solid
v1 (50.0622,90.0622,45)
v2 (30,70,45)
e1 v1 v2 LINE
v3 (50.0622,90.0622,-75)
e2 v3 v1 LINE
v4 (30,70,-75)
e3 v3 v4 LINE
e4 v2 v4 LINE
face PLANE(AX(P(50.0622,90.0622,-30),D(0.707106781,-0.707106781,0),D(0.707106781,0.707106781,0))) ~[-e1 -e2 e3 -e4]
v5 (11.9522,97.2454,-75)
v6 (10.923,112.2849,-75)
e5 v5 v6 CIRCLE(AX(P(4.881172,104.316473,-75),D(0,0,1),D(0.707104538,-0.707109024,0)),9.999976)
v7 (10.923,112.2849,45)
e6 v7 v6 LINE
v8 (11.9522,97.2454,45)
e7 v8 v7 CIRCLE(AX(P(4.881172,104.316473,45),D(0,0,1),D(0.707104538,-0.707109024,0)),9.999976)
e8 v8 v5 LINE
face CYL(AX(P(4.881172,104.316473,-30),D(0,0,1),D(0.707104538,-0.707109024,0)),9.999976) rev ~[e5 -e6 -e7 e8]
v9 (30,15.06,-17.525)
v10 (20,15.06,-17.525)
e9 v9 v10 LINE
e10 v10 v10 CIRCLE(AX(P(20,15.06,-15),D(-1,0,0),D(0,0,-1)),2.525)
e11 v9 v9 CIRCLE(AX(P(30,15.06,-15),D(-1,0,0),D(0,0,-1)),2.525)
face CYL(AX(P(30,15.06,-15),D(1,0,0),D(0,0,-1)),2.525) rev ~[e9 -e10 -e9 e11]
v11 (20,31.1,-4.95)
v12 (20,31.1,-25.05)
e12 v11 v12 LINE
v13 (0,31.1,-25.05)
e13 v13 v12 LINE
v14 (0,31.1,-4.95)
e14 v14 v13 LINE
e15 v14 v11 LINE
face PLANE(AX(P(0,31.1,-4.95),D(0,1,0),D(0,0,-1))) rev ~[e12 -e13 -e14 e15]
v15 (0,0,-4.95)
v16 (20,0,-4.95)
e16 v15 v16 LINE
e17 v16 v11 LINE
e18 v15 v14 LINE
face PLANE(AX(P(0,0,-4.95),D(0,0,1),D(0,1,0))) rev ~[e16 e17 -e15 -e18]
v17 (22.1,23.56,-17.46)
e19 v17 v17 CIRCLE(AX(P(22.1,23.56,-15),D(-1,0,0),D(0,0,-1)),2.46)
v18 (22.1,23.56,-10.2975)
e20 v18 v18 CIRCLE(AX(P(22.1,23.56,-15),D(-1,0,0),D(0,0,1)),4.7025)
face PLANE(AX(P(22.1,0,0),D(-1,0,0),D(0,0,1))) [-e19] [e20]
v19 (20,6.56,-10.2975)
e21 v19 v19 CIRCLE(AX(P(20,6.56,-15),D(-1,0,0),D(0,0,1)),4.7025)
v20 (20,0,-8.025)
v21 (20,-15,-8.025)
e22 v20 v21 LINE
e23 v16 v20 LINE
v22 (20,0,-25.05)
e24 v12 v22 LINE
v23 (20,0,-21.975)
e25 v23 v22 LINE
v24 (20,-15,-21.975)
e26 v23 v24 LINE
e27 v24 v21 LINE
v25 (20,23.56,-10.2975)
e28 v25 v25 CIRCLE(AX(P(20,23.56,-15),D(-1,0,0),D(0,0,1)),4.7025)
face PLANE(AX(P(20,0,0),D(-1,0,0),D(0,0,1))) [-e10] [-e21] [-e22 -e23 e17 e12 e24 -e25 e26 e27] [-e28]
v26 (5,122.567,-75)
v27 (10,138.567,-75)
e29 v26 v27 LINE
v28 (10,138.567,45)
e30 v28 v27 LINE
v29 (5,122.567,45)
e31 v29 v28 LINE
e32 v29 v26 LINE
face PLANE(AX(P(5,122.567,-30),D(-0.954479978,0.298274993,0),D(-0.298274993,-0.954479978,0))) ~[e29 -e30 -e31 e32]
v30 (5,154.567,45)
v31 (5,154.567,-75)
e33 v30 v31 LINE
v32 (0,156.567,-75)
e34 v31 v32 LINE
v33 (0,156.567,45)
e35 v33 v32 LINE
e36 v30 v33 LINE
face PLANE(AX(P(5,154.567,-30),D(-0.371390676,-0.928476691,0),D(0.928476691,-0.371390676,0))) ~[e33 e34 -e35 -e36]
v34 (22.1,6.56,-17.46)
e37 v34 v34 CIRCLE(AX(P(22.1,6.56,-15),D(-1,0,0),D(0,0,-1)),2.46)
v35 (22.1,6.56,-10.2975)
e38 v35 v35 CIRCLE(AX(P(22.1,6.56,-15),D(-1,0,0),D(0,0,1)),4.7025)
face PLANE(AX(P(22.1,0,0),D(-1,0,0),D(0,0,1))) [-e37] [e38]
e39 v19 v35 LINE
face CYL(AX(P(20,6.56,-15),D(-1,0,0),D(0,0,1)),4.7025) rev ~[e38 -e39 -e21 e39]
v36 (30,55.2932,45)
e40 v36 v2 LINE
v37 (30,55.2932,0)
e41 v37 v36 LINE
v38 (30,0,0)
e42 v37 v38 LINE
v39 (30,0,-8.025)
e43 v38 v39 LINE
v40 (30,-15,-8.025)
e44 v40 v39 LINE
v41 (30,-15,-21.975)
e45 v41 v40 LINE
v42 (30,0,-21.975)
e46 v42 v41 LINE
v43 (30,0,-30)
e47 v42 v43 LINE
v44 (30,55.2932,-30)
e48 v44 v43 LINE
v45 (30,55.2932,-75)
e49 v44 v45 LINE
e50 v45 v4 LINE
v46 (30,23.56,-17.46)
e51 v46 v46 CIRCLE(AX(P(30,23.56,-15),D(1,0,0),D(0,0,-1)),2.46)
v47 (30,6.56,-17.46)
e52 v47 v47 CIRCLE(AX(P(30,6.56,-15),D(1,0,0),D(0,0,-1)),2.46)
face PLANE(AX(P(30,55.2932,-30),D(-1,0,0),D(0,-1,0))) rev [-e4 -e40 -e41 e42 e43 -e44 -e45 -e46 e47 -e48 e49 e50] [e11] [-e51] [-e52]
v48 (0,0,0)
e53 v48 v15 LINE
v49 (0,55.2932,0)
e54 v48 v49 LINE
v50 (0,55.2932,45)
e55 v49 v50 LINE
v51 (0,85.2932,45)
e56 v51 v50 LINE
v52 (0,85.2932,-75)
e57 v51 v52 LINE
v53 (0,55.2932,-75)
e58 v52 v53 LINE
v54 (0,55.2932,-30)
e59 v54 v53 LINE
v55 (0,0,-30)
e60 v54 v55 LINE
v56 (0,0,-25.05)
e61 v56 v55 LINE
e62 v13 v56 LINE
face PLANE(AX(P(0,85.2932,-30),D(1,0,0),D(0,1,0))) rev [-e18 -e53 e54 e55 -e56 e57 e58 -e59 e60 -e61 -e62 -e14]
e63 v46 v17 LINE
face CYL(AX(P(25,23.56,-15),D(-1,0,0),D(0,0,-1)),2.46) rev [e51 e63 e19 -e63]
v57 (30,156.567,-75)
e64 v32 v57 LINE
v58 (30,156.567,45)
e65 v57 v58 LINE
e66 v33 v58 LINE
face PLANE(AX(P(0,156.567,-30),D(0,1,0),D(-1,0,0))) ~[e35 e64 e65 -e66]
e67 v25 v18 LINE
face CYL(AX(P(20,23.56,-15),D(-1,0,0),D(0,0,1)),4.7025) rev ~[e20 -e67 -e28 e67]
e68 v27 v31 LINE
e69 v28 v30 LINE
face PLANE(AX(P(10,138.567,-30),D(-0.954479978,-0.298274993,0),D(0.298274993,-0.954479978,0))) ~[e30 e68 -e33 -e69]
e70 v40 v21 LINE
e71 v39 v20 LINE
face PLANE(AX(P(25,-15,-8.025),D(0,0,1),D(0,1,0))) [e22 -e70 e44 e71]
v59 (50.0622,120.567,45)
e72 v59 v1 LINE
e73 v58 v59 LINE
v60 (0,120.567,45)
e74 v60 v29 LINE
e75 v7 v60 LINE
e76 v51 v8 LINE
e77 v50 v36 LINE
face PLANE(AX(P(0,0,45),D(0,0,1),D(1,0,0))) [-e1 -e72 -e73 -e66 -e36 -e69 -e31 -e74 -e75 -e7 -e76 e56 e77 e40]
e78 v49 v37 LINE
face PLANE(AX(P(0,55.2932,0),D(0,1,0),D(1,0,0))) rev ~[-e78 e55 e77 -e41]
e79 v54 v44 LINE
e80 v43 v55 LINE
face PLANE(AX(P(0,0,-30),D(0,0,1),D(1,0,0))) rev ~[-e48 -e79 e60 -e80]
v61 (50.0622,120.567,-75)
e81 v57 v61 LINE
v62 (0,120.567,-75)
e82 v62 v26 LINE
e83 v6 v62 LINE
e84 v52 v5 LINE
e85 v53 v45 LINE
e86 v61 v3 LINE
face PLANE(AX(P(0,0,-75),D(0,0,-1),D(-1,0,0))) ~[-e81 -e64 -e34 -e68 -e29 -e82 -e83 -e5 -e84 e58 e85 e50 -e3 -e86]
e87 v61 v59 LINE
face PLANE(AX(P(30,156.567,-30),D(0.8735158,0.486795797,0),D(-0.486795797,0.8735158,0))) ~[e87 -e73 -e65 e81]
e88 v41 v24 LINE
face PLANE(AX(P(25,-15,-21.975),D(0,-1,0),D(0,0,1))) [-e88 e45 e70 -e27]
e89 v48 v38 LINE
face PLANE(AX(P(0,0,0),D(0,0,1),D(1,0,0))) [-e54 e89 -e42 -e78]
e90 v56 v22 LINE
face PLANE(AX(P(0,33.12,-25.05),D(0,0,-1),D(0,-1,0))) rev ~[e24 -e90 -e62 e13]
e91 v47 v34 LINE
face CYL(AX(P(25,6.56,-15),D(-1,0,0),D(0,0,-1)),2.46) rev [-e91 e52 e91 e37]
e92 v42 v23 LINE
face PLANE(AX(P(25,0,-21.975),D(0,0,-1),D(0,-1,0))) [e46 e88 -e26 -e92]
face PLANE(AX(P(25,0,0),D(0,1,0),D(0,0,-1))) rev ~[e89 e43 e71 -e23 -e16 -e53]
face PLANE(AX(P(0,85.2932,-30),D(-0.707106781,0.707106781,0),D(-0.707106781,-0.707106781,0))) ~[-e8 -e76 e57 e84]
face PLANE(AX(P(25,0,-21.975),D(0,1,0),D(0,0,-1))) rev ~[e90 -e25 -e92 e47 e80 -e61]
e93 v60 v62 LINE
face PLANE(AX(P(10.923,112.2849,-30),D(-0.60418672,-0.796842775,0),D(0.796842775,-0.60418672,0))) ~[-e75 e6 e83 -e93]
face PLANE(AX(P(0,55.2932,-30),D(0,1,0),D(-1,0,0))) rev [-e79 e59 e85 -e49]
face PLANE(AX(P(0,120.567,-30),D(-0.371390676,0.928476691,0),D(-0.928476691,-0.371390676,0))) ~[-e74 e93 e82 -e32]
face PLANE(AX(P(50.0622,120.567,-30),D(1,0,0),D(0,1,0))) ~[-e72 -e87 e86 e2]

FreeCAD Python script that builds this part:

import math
import FreeCAD as App
import Part
import Sketcher

V = App.Vector
Q = App.Units.Quantity

doc = App.newDocument("Part")
body = doc.addObject("PartDesign::Body", "Body")

# Sketch on XY plane
sketch1 = doc.addObject("Sketcher::SketchObject", "Sketch")
body.addObject(sketch1)
sketch1.AttachmentSupport = (doc.XY_Plane, [""])
sketch1.MapMode = "FlatFace"
sketch1.addGeometry(Part.LineSegment(V(0, 40, 0), V(0, 0, 0)), False)
sketch1.addGeometry(Part.LineSegment(V(0, 0, 0), V(25, 0, 0)), False)
sketch1.addGeometry(Part.LineSegment(V(25, 0, 0), V(25, 40, 0)), False)
sketch1.addGeometry(Part.LineSegment(V(25, 40, 0), V(0, 40, 0)), False)
sketch1.addConstraint(Sketcher.Constraint("Coincident", 0, 2, 1, 1))
sketch1.addConstraint(Sketcher.Constraint("Coincident", 1, 2, 2, 1))
sketch1.addConstraint(Sketcher.Constraint("Coincident", 2, 2, 3, 1))
sketch1.addConstraint(Sketcher.Constraint("Coincident", 3, 2, 0, 1))
sketch1.addConstraint(Sketcher.Constraint("Vertical", 0))
sketch1.addConstraint(Sketcher.Constraint("Horizontal", 1))
sketch1.addConstraint(Sketcher.Constraint("Vertical", 2))
sketch1.addConstraint(Sketcher.Constraint("Horizontal", 3))
sketch1.addConstraint(Sketcher.Constraint("Coincident", 0, 2, -1, 1))
sketch1.addConstraint(Sketcher.Constraint("DistanceX", 1, 1, 1, 2, Q("25 mm")))
sketch1.addConstraint(Sketcher.Constraint("DistanceY", 0, 2, 0, 1, Q("40 mm")))
pad1 = doc.addObject("PartDesign::Pad", "Pad")
body.addObject(pad1)
pad1.Profile = sketch1
pad1.Length = 30
pad1.Reversed = True

# Sketch on YZ plane
sketch2 = doc.addObject("Sketcher::SketchObject", "Sketch001")
body.addObject(sketch2)
sketch2.AttachmentSupport = (doc.YZ_Plane, [""])
sketch2.MapMode = "FlatFace"
sketch2.AttachmentOffset = App.Placement(V(0, 0, 25), App.Rotation())
sketch2.addGeometry(Part.Circle(V(6.6, -15, 0), V(0, 0, 1), 2.5), False)
sketch2.addConstraint(Sketcher.Constraint("Diameter", 0, Q("4.92 mm")))
sketch2.addConstraint(Sketcher.Constraint("DistanceY", 0, 3, -1, 1, Q("15 mm")))
sketch2.addConstraint(Sketcher.Constraint("DistanceX", -1, 1, 0, 3, Q("6.56 mm")))
pocket1 = doc.addObject("PartDesign::Pocket", "Pocket")
body.addObject(pocket1)
pocket1.Profile = sketch2
pocket1.Length = 30

# Sketch on YZ plane
sketch3 = doc.addObject("Sketcher::SketchObject", "Sketch002")
body.addObject(sketch3)
sketch3.AttachmentSupport = (doc.YZ_Plane, [""])
sketch3.MapMode = "FlatFace"
sketch3.addGeometry(Part.LineSegment(V(0, -25, 0), V(0, -5, 0)), False)
sketch3.addGeometry(Part.LineSegment(V(0, -5, 0), V(33, -5, 0)), False)
sketch3.addGeometry(Part.LineSegment(V(33, -5, 0), V(33, -25, 0)), False)
sketch3.addGeometry(Part.LineSegment(V(33, -25, 0), V(0, -25, 0)), False)
sketch3.addConstraint(Sketcher.Constraint("Coincident", 0, 2, 1, 1))
sketch3.addConstraint(Sketcher.Constraint("Coincident", 1, 2, 2, 1))
sketch3.addConstraint(Sketcher.Constraint("Coincident", 2, 2, 3, 1))
sketch3.addConstraint(Sketcher.Constraint("Coincident", 3, 2, 0, 1))
sketch3.addConstraint(Sketcher.Constraint("Vertical", 0))
sketch3.addConstraint(Sketcher.Constraint("Horizontal", 1))
sketch3.addConstraint(Sketcher.Constraint("Vertical", 2))
sketch3.addConstraint(Sketcher.Constraint("Horizontal", 3))
sketch3.addConstraint(Sketcher.Constraint("PointOnObject", 0, 2, -2))
sketch3.addConstraint(Sketcher.Constraint("DistanceY", 0, 1, 0, 2, Q("20.1 mm")))
sketch3.addConstraint(Sketcher.Constraint("DistanceX", 1, 1, 1, 2, Q("33.12 mm")))
sketch3.addConstraint(Sketcher.Constraint("DistanceY", 0, 2, -1, 1, Q("4.95 mm")))
pocket2 = doc.addObject("PartDesign::Pocket", "Pocket001")
body.addObject(pocket2)
pocket2.Profile = sketch3
pocket2.Length = 20
pocket2.Reversed = True

# Sketch on XZ plane
sketch4 = doc.addObject("Sketcher::SketchObject", "Sketch003")
body.addObject(sketch4)
sketch4.AttachmentSupport = (doc.XZ_Plane, [""])
sketch4.MapMode = "FlatFace"
sketch4.addGeometry(Part.LineSegment(V(25, -8, 0), V(20, -8, 0)), False)
sketch4.addGeometry(Part.LineSegment(V(20, -8, 0), V(20, -22, 0)), False)
sketch4.addGeometry(Part.LineSegment(V(20, -22, 0), V(25, -22, 0)), False)
sketch4.addGeometry(Part.LineSegment(V(25, -22, 0), V(25, -8, 0)), False)
sketch4.addConstraint(Sketcher.Constraint("Coincident", 0, 2, 1, 1))
sketch4.addConstraint(Sketcher.Constraint("Coincident", 1, 2, 2, 1))
sketch4.addConstraint(Sketcher.Constraint("Coincident", 2, 2, 3, 1))
sketch4.addConstraint(Sketcher.Constraint("Coincident", 3, 2, 0, 1))
sketch4.addConstraint(Sketcher.Constraint("Horizontal", 0))
sketch4.addConstraint(Sketcher.Constraint("Vertical", 1))
sketch4.addConstraint(Sketcher.Constraint("Horizontal", 2))
sketch4.addConstraint(Sketcher.Constraint("Vertical", 3))
sketch4.addConstraint(Sketcher.Constraint("DistanceY", 1, 2, 1, 1, Q("13.95 mm")))
sketch4.addConstraint(Sketcher.Constraint("DistanceX", 0, 2, 0, 1, Q("5 mm")))
sketch4.addConstraint(Sketcher.Constraint("DistanceX", -1, 1, 0, 2, Q("20 mm")))
sketch4.addConstraint(Sketcher.Constraint("DistanceY", 0, 2, -1, 1, Q("8.025 mm")))
pad2 = doc.addObject("PartDesign::Pad", "Pad001")
body.addObject(pad2)
pad2.Profile = sketch4
pad2.Length = 15

# Sketch on YZ plane
sketch5 = doc.addObject("Sketcher::SketchObject", "Sketch004")
body.addObject(sketch5)
sketch5.AttachmentSupport = (doc.YZ_Plane, [""])
sketch5.MapMode = "FlatFace"
sketch5.AttachmentOffset = App.Placement(V(0, 0, 20), App.Rotation())
sketch5.addGeometry(Part.Circle(V(6.6, -15, 0), V(0, 0, 1), 4.7), False)
sketch5.addGeometry(Part.Circle(V(6.6, -15, 0), V(0, 0, 1), 2.5), False)
sketch5.addConstraint(Sketcher.Constraint("Coincident", 1, 3, 0, 3))
sketch5.addConstraint(Sketcher.Constraint("Diameter", 0, Q("9.405 mm")))
sketch5.addConstraint(Sketcher.Constraint("Diameter", 1, Q("4.92 mm")))
sketch5.addConstraint(Sketcher.Constraint("DistanceY", 0, 3, -1, 1, Q("15 mm")))
sketch5.addConstraint(Sketcher.Constraint("DistanceX", -1, 1, 0, 3, Q("6.56 mm")))
pocket3 = doc.addObject("PartDesign::Pocket", "Pocket002")
body.addObject(pocket3)
pocket3.Profile = sketch5
pocket3.Length = 2.1
pocket3.Reversed = True

# Sketch on YZ plane
sketch6 = doc.addObject("Sketcher::SketchObject", "Sketch005")
body.addObject(sketch6)
sketch6.AttachmentSupport = (doc.YZ_Plane, [""])
sketch6.MapMode = "FlatFace"
sketch6.AttachmentOffset = App.Placement(V(0, 0, 25), App.Rotation())
sketch6.addGeometry(Part.Circle(V(23.6, -15, 0), V(0, 0, 1), 2.5), False)
sketch6.addConstraint(Sketcher.Constraint("Diameter", 0, Q("4.92 mm")))
sketch6.addConstraint(Sketcher.Constraint("DistanceY", 0, 3, -1, 1, Q("15 mm")))
sketch6.addConstraint(Sketcher.Constraint("DistanceX", -1, 1, 0, 3, Q("23.56 mm")))
pocket4 = doc.addObject("PartDesign::Pocket", "Pocket003")
body.addObject(pocket4)
pocket4.Profile = sketch6
pocket4.Length = 10

# Sketch on YZ plane
sketch7 = doc.addObject("Sketcher::SketchObject", "Sketch006")
body.addObject(sketch7)
sketch7.AttachmentSupport = (doc.YZ_Plane, [""])
sketch7.MapMode = "FlatFace"
sketch7.AttachmentOffset = App.Placement(V(0, 0, 20), App.Rotation())
sketch7.addGeometry(Part.Circle(V(23.6, -15, 0), V(0, 0, 1), 4.7), False)
sketch7.addGeometry(Part.Circle(V(23.6, -15, 0), V(0, 0, 1), 2.5), False)
sketch7.addConstraint(Sketcher.Constraint("Coincident", 1, 3, 0, 3))
sketch7.addConstraint(Sketcher.Constraint("Diameter", 0, Q("9.405 mm")))
sketch7.addConstraint(Sketcher.Constraint("Diameter", 1, Q("4.92 mm")))
sketch7.addConstraint(Sketcher.Constraint("DistanceY", 0, 3, -1, 1, Q("15 mm")))
sketch7.addConstraint(Sketcher.Constraint("DistanceX", -1, 1, 0, 3, Q("23.56 mm")))
pocket5 = doc.addObject("PartDesign::Pocket", "Pocket004")
body.addObject(pocket5)
pocket5.Profile = sketch7
pocket5.Length = 2.1
pocket5.Reversed = True

# Sketch on YZ plane
sketch8 = doc.addObject("Sketcher::SketchObject", "Sketch007")
body.addObject(sketch8)
sketch8.AttachmentSupport = (doc.YZ_Plane, [""])
sketch8.MapMode = "FlatFace"
sketch8.AttachmentOffset = App.Placement(V(0, 0, 25), App.Rotation())
sketch8.addGeometry(Part.LineSegment(V(0, -30, 0), V(40, -30, 0)), False)
sketch8.addGeometry(Part.LineSegment(V(40, -30, 0), V(40, 0, 0)), False)
sketch8.addGeometry(Part.LineSegment(V(40, 0, 0), V(0, 0, 0)), False)
sketch8.addGeometry(Part.LineSegment(V(0, 0, 0), V(0, -8, 0)), False)
sketch8.addGeometry(Part.LineSegment(V(0, -8, 0), V(-15, -8, 0)), False)
sketch8.addGeometry(Part.LineSegment(V(-15, -8, 0), V(-15, -22, 0)), False)
sketch8.addGeometry(Part.LineSegment(V(-15, -22, 0), V(0, -22, 0)), False)
sketch8.addGeometry(Part.LineSegment(V(0, -22, 0), V(0, -30, 0)), False)
sketch8.addGeometry(Part.Circle(V(6.6, -15, 0), V(0, 0, 1), 2.5), False)
sketch8.addGeometry(Part.Circle(V(23.6, -15, 0), V(0, 0, 1), 2.5), False)
sketch8.addConstraint(Sketcher.Constraint("Coincident", 0, 2, 1, 1))
sketch8.addConstraint(Sketcher.Constraint("Coincident", 1, 2, 2, 1))
sketch8.addConstraint(Sketcher.Constraint("Coincident", 2, 2, 3, 1))
sketch8.addConstraint(Sketcher.Constraint("Coincident", 3, 2, 4, 1))
sketch8.addConstraint(Sketcher.Constraint("Coincident", 4, 2, 5, 1))
sketch8.addConstraint(Sketcher.Constraint("Coincident", 5, 2, 6, 1))
sketch8.addConstraint(Sketcher.Constraint("Coincident", 6, 2, 7, 1))
sketch8.addConstraint(Sketcher.Constraint("Coincident", 7, 2, 0, 1))
sketch8.addConstraint(Sketcher.Constraint("Horizontal", 0))
sketch8.addConstraint(Sketcher.Constraint("Vertical", 1))
sketch8.addConstraint(Sketcher.Constraint("Horizontal", 2))
sketch8.addConstraint(Sketcher.Constraint("Vertical", 3))
sketch8.addConstraint(Sketcher.Constraint("Horizontal", 4))
sketch8.addConstraint(Sketcher.Constraint("Vertical", 5))
sketch8.addConstraint(Sketcher.Constraint("Horizontal", 6))
sketch8.addConstraint(Sketcher.Constraint("Vertical", 7))
sketch8.addConstraint(Sketcher.Constraint("Coincident", 2, 2, -1, 1))
sketch8.addConstraint(Sketcher.Constraint("Equal", 8, 9))
sketch8.addConstraint(Sketcher.Constraint("PointOnObject", 6, 2, -2))
sketch8.addConstraint(Sketcher.Constraint("Horizontal", 8, 3, 9, 3))
sketch8.addConstraint(Sketcher.Constraint("Equal", 3, 7))
sketch8.addConstraint(Sketcher.Constraint("Diameter", 8, Q("4.92 mm")))
sketch8.addConstraint(Sketcher.Constraint("DistanceX", 0, 1, 0, 2, Q("40 mm")))
sketch8.addConstraint(Sketcher.Constraint("DistanceX", 4, 2, 4, 1, Q("15 mm")))
sketch8.addConstraint(Sketcher.Constraint("DistanceY", 1, 1, 1, 2, Q("30 mm")))
sketch8.addConstraint(Sketcher.Constraint("DistanceY", 8, 3, -1, 1, Q("15 mm")))
sketch8.addConstraint(Sketcher.Constraint("DistanceX", 8, 3, 9, 3, Q("17 mm")))
sketch8.addConstraint(Sketcher.Constraint("DistanceY", 5, 2, 5, 1, Q("13.95 mm")))
sketch8.addConstraint(Sketcher.Constraint("DistanceX", -1, 1, 8, 3, Q("6.56 mm")))
pad3 = doc.addObject("PartDesign::Pad", "Pad002")
body.addObject(pad3)
pad3.Profile = sketch8
pad3.Length = 5

# Sketch on XZ plane
sketch9 = doc.addObject("Sketcher::SketchObject", "Sketch008")
body.addObject(sketch9)
sketch9.AttachmentSupport = (doc.XZ_Plane, [""])
sketch9.MapMode = "FlatFace"
sketch9.AttachmentOffset = App.Placement(V(0, 0, -40), App.Rotation())
sketch9.addGeometry(Part.LineSegment(V(30, -30, 0), V(0, -30, 0)), False)
sketch9.addGeometry(Part.LineSegment(V(0, -30, 0), V(0, 0, 0)), False)
sketch9.addGeometry(Part.LineSegment(V(0, 0, 0), V(30, 0, 0)), False)
sketch9.addGeometry(Part.LineSegment(V(30, 0, 0), V(30, -30, 0)), False)
sketch9.addConstraint(Sketcher.Constraint("Coincident", 0, 2, 1, 1))
sketch9.addConstraint(Sketcher.Constraint("Coincident", 1, 2, 2, 1))
sketch9.addConstraint(Sketcher.Constraint("Coincident", 2, 2, 3, 1))
sketch9.addConstraint(Sketcher.Constraint("Coincident", 3, 2, 0, 1))
sketch9.addConstraint(Sketcher.Constraint("Horizontal", 0))
sketch9.addConstraint(Sketcher.Constraint("Vertical", 1))
sketch9.addConstraint(Sketcher.Constraint("Horizontal", 2))
sketch9.addConstraint(Sketcher.Constraint("Vertical", 3))
sketch9.addConstraint(Sketcher.Constraint("Coincident", 1, 2, -1, 1))
sketch9.addConstraint(Sketcher.Constraint("Equal", 2, 1))
sketch9.addConstraint(Sketcher.Constraint("DistanceX", 0, 2, 0, 1, Q("30 mm")))
pad4 = doc.addObject("PartDesign::Pad", "Pad003")
body.addObject(pad4)
pad4.Profile = sketch9
pad4.Length = 30
pad4.Reversed = True

# Sketch on YZ plane
sketch10 = doc.addObject("Sketcher::SketchObject", "Sketch009")
body.addObject(sketch10)
sketch10.AttachmentSupport = (doc.YZ_Plane, [""])
sketch10.MapMode = "FlatFace"
sketch10.AttachmentOffset = App.Placement(V(0, 0, 30), App.Rotation())
sketch10.addGeometry(Part.Circle(V(15.1, -15, 0), V(0, 0, 1), 2.5), False)
sketch10.addConstraint(Sketcher.Constraint("Diameter", 0, Q("5.05 mm")))
sketch10.addConstraint(Sketcher.Constraint("DistanceY", 0, 3, -1, 1, Q("15 mm")))
sketch10.addConstraint(Sketcher.Constraint("DistanceX", -1, 1, 0, 3, Q("15.06 mm")))
pocket6 = doc.addObject("PartDesign::Pocket", "Pocket005")
body.addObject(pocket6)
pocket6.Profile = sketch10
pocket6.Length = 30

# Sketch on YZ plane
sketch11 = doc.addObject("Sketcher::SketchObject", "Sketch010")
body.addObject(sketch11)
sketch11.AttachmentSupport = (doc.YZ_Plane, [""])
sketch11.MapMode = "FlatFace"
sketch11.addGeometry(Part.LineSegment(V(33.1, -5, 0), V(33.1, -25.1, 0)), False)
sketch11.addGeometry(Part.LineSegment(V(33.1, -25.1, 0), V(31.1, -25.1, 0)), False)
sketch11.addGeometry(Part.LineSegment(V(31.1, -25.1, 0), V(31.1, -5, 0)), False)
sketch11.addGeometry(Part.LineSegment(V(31.1, -5, 0), V(33.1, -5, 0)), False)
sketch11.addConstraint(Sketcher.Constraint("Coincident", 0, 2, 1, 1))
sketch11.addConstraint(Sketcher.Constraint("Coincident", 1, 2, 2, 1))
sketch11.addConstraint(Sketcher.Constraint("Coincident", 2, 2, 3, 1))
sketch11.addConstraint(Sketcher.Constraint("Coincident", 3, 2, 0, 1))
sketch11.addConstraint(Sketcher.Constraint("Vertical", 0))
sketch11.addConstraint(Sketcher.Constraint("Horizontal", 1))
sketch11.addConstraint(Sketcher.Constraint("Vertical", 2))
sketch11.addConstraint(Sketcher.Constraint("Horizontal", 3))
sketch11.addConstraint(Sketcher.Constraint("DistanceX", 1, 2, 1, 1, Q("2.02 mm")))
sketch11.addConstraint(Sketcher.Constraint("DistanceY", 0, 2, 0, 1, Q("20.1 mm")))
sketch11.addConstraint(Sketcher.Constraint("DistanceX", -1, 1, 1, 2, Q("31.1 mm")))
sketch11.addConstraint(Sketcher.Constraint("DistanceY", 0, 2, -1, 1, Q("25.05 mm")))
pad5 = doc.addObject("PartDesign::Pad", "Pad004")
body.addObject(pad5)
pad5.Profile = sketch11
pad5.Length = 20

# Sketch on XY plane
sketch12 = doc.addObject("Sketcher::SketchObject", "Sketch011")
body.addObject(sketch12)
sketch12.AttachmentSupport = (doc.XY_Plane, [""])
sketch12.MapMode = "FlatFace"
sketch12.addGeometry(Part.LineSegment(V(0, 85, 0), V(0, 70, 0)), False)
sketch12.addGeometry(Part.LineSegment(V(0, 70, 0), V(30, 70, 0)), False)
sketch12.addGeometry(Part.LineSegment(V(30, 70, 0), V(50, 90, 0)), False)
sketch12.addGeometry(Part.LineSegment(V(50, 90, 0), V(50, 121, 0)), False)
sketch12.addGeometry(Part.LineSegment(V(50, 121, 0), V(30, 157, 0)), False)
sketch12.addGeometry(Part.LineSegment(V(30, 157, 0), V(0, 157, 0)), False)
sketch12.addGeometry(Part.LineSegment(V(0, 157, 0), V(5, 155, 0)), False)
sketch12.addGeometry(Part.LineSegment(V(5, 155, 0), V(10, 139, 0)), False)
sketch12.addGeometry(Part.LineSegment(V(10, 139, 0), V(5, 123, 0)), False)
sketch12.addGeometry(Part.LineSegment(V(5, 123, 0), V(0, 121, 0)), False)
sketch12.addGeometry(Part.LineSegment(V(0, 121, 0), V(11, 112, 0)), False)
sketch12.addGeometry(Part.ArcOfCircle(Part.Circle(V(5, 104, 0), V(0, 0, 1), 10), math.radians(-45), math.radians(53)), False)
sketch12.addGeometry(Part.LineSegment(V(12, 97, 0), V(0, 85, 0)), False)
sketch12.addConstraint(Sketcher.Constraint("Coincident", 0, 2, 1, 1))
sketch12.addConstraint(Sketcher.Constraint("Coincident", 1, 2, 2, 1))
sketch12.addConstraint(Sketcher.Constraint("Coincident", 2, 2, 3, 1))
sketch12.addConstraint(Sketcher.Constraint("Coincident", 3, 2, 4, 1))
sketch12.addConstraint(Sketcher.Constraint("Coincident", 4, 2, 5, 1))
sketch12.addConstraint(Sketcher.Constraint("Coincident", 5, 2, 6, 1))
sketch12.addConstraint(Sketcher.Constraint("Coincident", 6, 2, 7, 1))
sketch12.addConstraint(Sketcher.Constraint("Coincident", 7, 2, 8, 1))
sketch12.addConstraint(Sketcher.Constraint("Coincident", 8, 2, 9, 1))
sketch12.addConstraint(Sketcher.Constraint("Coincident", 9, 2, 10, 1))
sketch12.addConstraint(Sketcher.Constraint("Tangent", 10, 2, 11, 2))
sketch12.addConstraint(Sketcher.Constraint("Tangent", 11, 1, 12, 1))
sketch12.addConstraint(Sketcher.Constraint("Coincident", 12, 2, 0, 1))
sketch12.addConstraint(Sketcher.Constraint("Vertical", 0))
sketch12.addConstraint(Sketcher.Constraint("Horizontal", 1))
sketch12.addConstraint(Sketcher.Constraint("Vertical", 3))
sketch12.addConstraint(Sketcher.Constraint("Horizontal", 5))
sketch12.addConstraint(Sketcher.Constraint("PointOnObject", 0, 2, -2))
sketch12.addConstraint(Sketcher.Constraint("PointOnObject", 5, 2, -2))
sketch12.addConstraint(Sketcher.Constraint("PointOnObject", 9, 2, -2))
sketch12.addConstraint(Sketcher.Constraint("Parallel", 2, 12))
sketch12.addConstraint(Sketcher.Constraint("Horizontal", 3, 2, 9, 2))
sketch12.addConstraint(Sketcher.Constraint("Vertical", 1, 2, 4, 2))
sketch12.addConstraint(Sketcher.Constraint("Vertical", 6, 2, 8, 2))
sketch12.addConstraint(Sketcher.Constraint("Equal", 7, 8))
sketch12.addConstraint(Sketcher.Constraint("Equal", 6, 9))
sketch12.addConstraint(Sketcher.Constraint("Radius", 11, Q("10 mm")))
sketch12.addConstraint(Sketcher.Constraint("Angle", 2, Q("45 deg")))
sketch12.addConstraint(Sketcher.Constraint("DistanceX", -1, 1, 7, 2, Q("10 mm")))
sketch12.addConstraint(Sketcher.Constraint("DistanceX", 1, 1, 1, 2, Q("30 mm")))
sketch12.addConstraint(Sketcher.Constraint("DistanceY", -1, 1, 0, 2, Q("70 mm")))
sketch12.addConstraint(Sketcher.Constraint("DistanceX", -1, 1, 6, 2, Q("5 mm")))
sketch12.addConstraint(Sketcher.Constraint("DistanceY", 3, 2, 4, 2, Q("36 mm")))
sketch12.addConstraint(Sketcher.Constraint("DistanceY", 6, 2, 5, 2, Q("2 mm")))
sketch12.addConstraint(Sketcher.Constraint("Angle", 4, Q("119.1302 deg")))
sketch12.addConstraint(Sketcher.Constraint("Angle", 10, Q("-37.1703 deg")))
sketch12.addConstraint(Sketcher.Constraint("Distance", 12, Q("16.903 mm")))
sketch12.addConstraint(Sketcher.Constraint("DistanceY", 0, 2, 0, 1, Q("15.2932 mm")))
pad6 = doc.addObject("PartDesign::Pad", "Pad005")
body.addObject(pad6)
pad6.Profile = sketch12
pad6.Length = 30
pad6.Reversed = True

# Sketch on XY plane
sketch13 = doc.addObject("Sketcher::SketchObject", "Sketch012")
body.addObject(sketch13)
sketch13.AttachmentSupport = (doc.XY_Plane, [""])
sketch13.MapMode = "FlatFace"
sketch13.addGeometry(Part.LineSegment(V(30, 70, 0), V(50, 90, 0)), False)
sketch13.addGeometry(Part.LineSegment(V(50, 90, 0), V(50, 121, 0)), False)
sketch13.addGeometry(Part.LineSegment(V(50, 121, 0), V(30, 157, 0)), False)
sketch13.addGeometry(Part.LineSegment(V(30, 157, 0), V(0, 157, 0)), False)
sketch13.addGeometry(Part.LineSegment(V(0, 157, 0), V(5, 155, 0)), False)
sketch13.addGeometry(Part.LineSegment(V(5, 155, 0), V(10, 139, 0)), False)
sketch13.addGeometry(Part.LineSegment(V(10, 139, 0), V(5, 123, 0)), False)
sketch13.addGeometry(Part.LineSegment(V(5, 123, 0), V(0, 121, 0)), False)
sketch13.addGeometry(Part.LineSegment(V(0, 121, 0), V(11, 112, 0)), False)
sketch13.addGeometry(Part.ArcOfCircle(Part.Circle(V(5, 104, 0), V(0, 0, 1), 10), math.radians(-45), math.radians(53)), False)
sketch13.addGeometry(Part.LineSegment(V(12, 97, 0), V(0, 85, 0)), False)
sketch13.addGeometry(Part.LineSegment(V(0, 85, 0), V(0, 55, 0)), False)
sketch13.addGeometry(Part.LineSegment(V(0, 55, 0), V(30, 55, 0)), False)
sketch13.addGeometry(Part.LineSegment(V(30, 55, 0), V(30, 70, 0)), False)
sketch13.addConstraint(Sketcher.Constraint("Coincident", 0, 2, 1, 1))
sketch13.addConstraint(Sketcher.Constraint("Coincident", 1, 2, 2, 1))
sketch13.addConstraint(Sketcher.Constraint("Coincident", 2, 2, 3, 1))
sketch13.addConstraint(Sketcher.Constraint("Coincident", 3, 2, 4, 1))
sketch13.addConstraint(Sketcher.Constraint("Coincident", 4, 2, 5, 1))
sketch13.addConstraint(Sketcher.Constraint("Coincident", 5, 2, 6, 1))
sketch13.addConstraint(Sketcher.Constraint("Coincident", 6, 2, 7, 1))
sketch13.addConstraint(Sketcher.Constraint("Coincident", 7, 2, 8, 1))
sketch13.addConstraint(Sketcher.Constraint("Tangent", 8, 2, 9, 2))
sketch13.addConstraint(Sketcher.Constraint("Tangent", 9, 1, 10, 1))
sketch13.addConstraint(Sketcher.Constraint("Coincident", 10, 2, 11, 1))
sketch13.addConstraint(Sketcher.Constraint("Coincident", 11, 2, 12, 1))
sketch13.addConstraint(Sketcher.Constraint("Coincident", 12, 2, 13, 1))
sketch13.addConstraint(Sketcher.Constraint("Coincident", 13, 2, 0, 1))
sketch13.addConstraint(Sketcher.Constraint("Vertical", 1))
sketch13.addConstraint(Sketcher.Constraint("Horizontal", 3))
sketch13.addConstraint(Sketcher.Constraint("Vertical", 11))
sketch13.addConstraint(Sketcher.Constraint("Horizontal", 12))
sketch13.addConstraint(Sketcher.Constraint("Vertical", 13))
sketch13.addConstraint(Sketcher.Constraint("PointOnObject", 3, 2, -2))
sketch13.addConstraint(Sketcher.Constraint("PointOnObject", 7, 2, -2))
sketch13.addConstraint(Sketcher.Constraint("PointOnObject", 10, 2, -2))
sketch13.addConstraint(Sketcher.Constraint("Parallel", 0, 10))
sketch13.addConstraint(Sketcher.Constraint("Horizontal", 1, 2, 7, 2))
sketch13.addConstraint(Sketcher.Constraint("Vertical", 4, 2, 6, 2))
sketch13.addConstraint(Sketcher.Constraint("Vertical", 2, 2, 12, 2))
sketch13.addConstraint(Sketcher.Constraint("Equal", 12, 11))
sketch13.addConstraint(Sketcher.Constraint("Equal", 5, 6))
sketch13.addConstraint(Sketcher.Constraint("Equal", 4, 7))
sketch13.addConstraint(Sketcher.Constraint("DistanceX", 3, 2, 3, 1, Q("30 mm")))
sketch13.addConstraint(Sketcher.Constraint("Radius", 9, Q("10 mm")))
sketch13.addConstraint(Sketcher.Constraint("Angle", 0, Q("45 deg")))
sketch13.addConstraint(Sketcher.Constraint("DistanceX", -1, 1, 4, 2, Q("5 mm")))
sketch13.addConstraint(Sketcher.Constraint("DistanceX", -1, 1, 5, 2, Q("10 mm")))
sketch13.addConstraint(Sketcher.Constraint("DistanceY", -1, 1, 13, 2, Q("70 mm")))
sketch13.addConstraint(Sketcher.Constraint("DistanceY", 1, 2, 2, 2, Q("36 mm")))
sketch13.addConstraint(Sketcher.Constraint("DistanceY", 4, 2, 3, 2, Q("2 mm")))
sketch13.addConstraint(Sketcher.Constraint("Angle", 2, Q("119.1302 deg")))
sketch13.addConstraint(Sketcher.Constraint("Angle", 8, Q("-37.1703 deg")))
sketch13.addConstraint(Sketcher.Constraint("DistanceX", 9, 1, 0, 2, Q("38.11 mm")))
sketch13.addConstraint(Sketcher.Constraint("DistanceY", 1, 1, 1, 2, Q("30.5048 mm")))
pad7 = doc.addObject("PartDesign::Pad", "Pad006")
body.addObject(pad7)
pad7.Profile = sketch13
pad7.Length = 45
doc.recompute()

datumplane = doc.addObject("PartDesign::Plane", "DatumPlane")
body.addObject(datumplane)
datumplane.AttachmentSupport = (doc.XY_Plane, [""])
datumplane.MapMode = "FlatFace"
datumplane.AttachmentOffset = App.Placement(V(0, 0, -15), App.Rotation())
mirrored = doc.addObject("PartDesign::Mirrored", "Mirrored")
body.addObject(mirrored)
mirrored.Originals = [pad7]
mirrored.MirrorPlane = (datumplane, [""])
body.Tip = mirrored

doc.recompute()
